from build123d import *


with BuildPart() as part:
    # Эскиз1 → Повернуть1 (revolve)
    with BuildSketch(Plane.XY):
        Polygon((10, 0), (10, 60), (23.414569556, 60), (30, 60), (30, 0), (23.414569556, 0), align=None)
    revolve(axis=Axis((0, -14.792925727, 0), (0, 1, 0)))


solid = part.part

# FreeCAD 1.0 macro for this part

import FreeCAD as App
import Part
import Sketcher

V = App.Vector
Q = App.Units.Quantity


def add_polygon(sketch, points):
    """Adds a closed chain of lines whose ends are joined by coincident constraints."""
    first, n = sketch.GeometryCount, len(points)
    for a, b in zip(points, points[1:] + points[:1]):
        sketch.addGeometry(Part.LineSegment(App.Vector(*a, 0), App.Vector(*b, 0)), False)
    for i in range(n):
        sketch.addConstraint(Sketcher.Constraint("Coincident", first + i, 2, first + (i + 1) % n, 1))

doc = App.newDocument("Part")
body = doc.addObject("PartDesign::Body", "Body")

# Sketch on XY plane
sketch1 = body.newObject("Sketcher::SketchObject", "Sketch")
sketch1.AttachmentSupport = (doc.getObject("XY_Plane"), [""])
sketch1.MapMode = "FlatFace"
add_polygon(sketch1, [(10, 60), (10, 0), (30, 0), (30, 60)])  # lines 0-3
sketch1.addConstraint(Sketcher.Constraint("Vertical", 0))
sketch1.addConstraint(Sketcher.Constraint("Horizontal", 1))
sketch1.addConstraint(Sketcher.Constraint("Vertical", 2))
sketch1.addConstraint(Sketcher.Constraint("Horizontal", 3))
sketch1.addConstraint(Sketcher.Constraint("PointOnObject", 0, 2, -1))
sketch1.addConstraint(Sketcher.Constraint("DistanceX", 1, 1, 1, 2, Q("20 mm")))
sketch1.addConstraint(Sketcher.Constraint("DistanceY", 0, 2, 0, 1, Q("60 mm")))
sketch1.addConstraint(Sketcher.Constraint("DistanceX", -1, 1, 0, 2, Q("10 mm")))
revolution = body.newObject("PartDesign::Revolution", "Revolution")
revolution.Profile = sketch1
revolution.ReferenceAxis = (sketch1, ["V_Axis"])
revolution.Angle = 360

doc.recompute()
